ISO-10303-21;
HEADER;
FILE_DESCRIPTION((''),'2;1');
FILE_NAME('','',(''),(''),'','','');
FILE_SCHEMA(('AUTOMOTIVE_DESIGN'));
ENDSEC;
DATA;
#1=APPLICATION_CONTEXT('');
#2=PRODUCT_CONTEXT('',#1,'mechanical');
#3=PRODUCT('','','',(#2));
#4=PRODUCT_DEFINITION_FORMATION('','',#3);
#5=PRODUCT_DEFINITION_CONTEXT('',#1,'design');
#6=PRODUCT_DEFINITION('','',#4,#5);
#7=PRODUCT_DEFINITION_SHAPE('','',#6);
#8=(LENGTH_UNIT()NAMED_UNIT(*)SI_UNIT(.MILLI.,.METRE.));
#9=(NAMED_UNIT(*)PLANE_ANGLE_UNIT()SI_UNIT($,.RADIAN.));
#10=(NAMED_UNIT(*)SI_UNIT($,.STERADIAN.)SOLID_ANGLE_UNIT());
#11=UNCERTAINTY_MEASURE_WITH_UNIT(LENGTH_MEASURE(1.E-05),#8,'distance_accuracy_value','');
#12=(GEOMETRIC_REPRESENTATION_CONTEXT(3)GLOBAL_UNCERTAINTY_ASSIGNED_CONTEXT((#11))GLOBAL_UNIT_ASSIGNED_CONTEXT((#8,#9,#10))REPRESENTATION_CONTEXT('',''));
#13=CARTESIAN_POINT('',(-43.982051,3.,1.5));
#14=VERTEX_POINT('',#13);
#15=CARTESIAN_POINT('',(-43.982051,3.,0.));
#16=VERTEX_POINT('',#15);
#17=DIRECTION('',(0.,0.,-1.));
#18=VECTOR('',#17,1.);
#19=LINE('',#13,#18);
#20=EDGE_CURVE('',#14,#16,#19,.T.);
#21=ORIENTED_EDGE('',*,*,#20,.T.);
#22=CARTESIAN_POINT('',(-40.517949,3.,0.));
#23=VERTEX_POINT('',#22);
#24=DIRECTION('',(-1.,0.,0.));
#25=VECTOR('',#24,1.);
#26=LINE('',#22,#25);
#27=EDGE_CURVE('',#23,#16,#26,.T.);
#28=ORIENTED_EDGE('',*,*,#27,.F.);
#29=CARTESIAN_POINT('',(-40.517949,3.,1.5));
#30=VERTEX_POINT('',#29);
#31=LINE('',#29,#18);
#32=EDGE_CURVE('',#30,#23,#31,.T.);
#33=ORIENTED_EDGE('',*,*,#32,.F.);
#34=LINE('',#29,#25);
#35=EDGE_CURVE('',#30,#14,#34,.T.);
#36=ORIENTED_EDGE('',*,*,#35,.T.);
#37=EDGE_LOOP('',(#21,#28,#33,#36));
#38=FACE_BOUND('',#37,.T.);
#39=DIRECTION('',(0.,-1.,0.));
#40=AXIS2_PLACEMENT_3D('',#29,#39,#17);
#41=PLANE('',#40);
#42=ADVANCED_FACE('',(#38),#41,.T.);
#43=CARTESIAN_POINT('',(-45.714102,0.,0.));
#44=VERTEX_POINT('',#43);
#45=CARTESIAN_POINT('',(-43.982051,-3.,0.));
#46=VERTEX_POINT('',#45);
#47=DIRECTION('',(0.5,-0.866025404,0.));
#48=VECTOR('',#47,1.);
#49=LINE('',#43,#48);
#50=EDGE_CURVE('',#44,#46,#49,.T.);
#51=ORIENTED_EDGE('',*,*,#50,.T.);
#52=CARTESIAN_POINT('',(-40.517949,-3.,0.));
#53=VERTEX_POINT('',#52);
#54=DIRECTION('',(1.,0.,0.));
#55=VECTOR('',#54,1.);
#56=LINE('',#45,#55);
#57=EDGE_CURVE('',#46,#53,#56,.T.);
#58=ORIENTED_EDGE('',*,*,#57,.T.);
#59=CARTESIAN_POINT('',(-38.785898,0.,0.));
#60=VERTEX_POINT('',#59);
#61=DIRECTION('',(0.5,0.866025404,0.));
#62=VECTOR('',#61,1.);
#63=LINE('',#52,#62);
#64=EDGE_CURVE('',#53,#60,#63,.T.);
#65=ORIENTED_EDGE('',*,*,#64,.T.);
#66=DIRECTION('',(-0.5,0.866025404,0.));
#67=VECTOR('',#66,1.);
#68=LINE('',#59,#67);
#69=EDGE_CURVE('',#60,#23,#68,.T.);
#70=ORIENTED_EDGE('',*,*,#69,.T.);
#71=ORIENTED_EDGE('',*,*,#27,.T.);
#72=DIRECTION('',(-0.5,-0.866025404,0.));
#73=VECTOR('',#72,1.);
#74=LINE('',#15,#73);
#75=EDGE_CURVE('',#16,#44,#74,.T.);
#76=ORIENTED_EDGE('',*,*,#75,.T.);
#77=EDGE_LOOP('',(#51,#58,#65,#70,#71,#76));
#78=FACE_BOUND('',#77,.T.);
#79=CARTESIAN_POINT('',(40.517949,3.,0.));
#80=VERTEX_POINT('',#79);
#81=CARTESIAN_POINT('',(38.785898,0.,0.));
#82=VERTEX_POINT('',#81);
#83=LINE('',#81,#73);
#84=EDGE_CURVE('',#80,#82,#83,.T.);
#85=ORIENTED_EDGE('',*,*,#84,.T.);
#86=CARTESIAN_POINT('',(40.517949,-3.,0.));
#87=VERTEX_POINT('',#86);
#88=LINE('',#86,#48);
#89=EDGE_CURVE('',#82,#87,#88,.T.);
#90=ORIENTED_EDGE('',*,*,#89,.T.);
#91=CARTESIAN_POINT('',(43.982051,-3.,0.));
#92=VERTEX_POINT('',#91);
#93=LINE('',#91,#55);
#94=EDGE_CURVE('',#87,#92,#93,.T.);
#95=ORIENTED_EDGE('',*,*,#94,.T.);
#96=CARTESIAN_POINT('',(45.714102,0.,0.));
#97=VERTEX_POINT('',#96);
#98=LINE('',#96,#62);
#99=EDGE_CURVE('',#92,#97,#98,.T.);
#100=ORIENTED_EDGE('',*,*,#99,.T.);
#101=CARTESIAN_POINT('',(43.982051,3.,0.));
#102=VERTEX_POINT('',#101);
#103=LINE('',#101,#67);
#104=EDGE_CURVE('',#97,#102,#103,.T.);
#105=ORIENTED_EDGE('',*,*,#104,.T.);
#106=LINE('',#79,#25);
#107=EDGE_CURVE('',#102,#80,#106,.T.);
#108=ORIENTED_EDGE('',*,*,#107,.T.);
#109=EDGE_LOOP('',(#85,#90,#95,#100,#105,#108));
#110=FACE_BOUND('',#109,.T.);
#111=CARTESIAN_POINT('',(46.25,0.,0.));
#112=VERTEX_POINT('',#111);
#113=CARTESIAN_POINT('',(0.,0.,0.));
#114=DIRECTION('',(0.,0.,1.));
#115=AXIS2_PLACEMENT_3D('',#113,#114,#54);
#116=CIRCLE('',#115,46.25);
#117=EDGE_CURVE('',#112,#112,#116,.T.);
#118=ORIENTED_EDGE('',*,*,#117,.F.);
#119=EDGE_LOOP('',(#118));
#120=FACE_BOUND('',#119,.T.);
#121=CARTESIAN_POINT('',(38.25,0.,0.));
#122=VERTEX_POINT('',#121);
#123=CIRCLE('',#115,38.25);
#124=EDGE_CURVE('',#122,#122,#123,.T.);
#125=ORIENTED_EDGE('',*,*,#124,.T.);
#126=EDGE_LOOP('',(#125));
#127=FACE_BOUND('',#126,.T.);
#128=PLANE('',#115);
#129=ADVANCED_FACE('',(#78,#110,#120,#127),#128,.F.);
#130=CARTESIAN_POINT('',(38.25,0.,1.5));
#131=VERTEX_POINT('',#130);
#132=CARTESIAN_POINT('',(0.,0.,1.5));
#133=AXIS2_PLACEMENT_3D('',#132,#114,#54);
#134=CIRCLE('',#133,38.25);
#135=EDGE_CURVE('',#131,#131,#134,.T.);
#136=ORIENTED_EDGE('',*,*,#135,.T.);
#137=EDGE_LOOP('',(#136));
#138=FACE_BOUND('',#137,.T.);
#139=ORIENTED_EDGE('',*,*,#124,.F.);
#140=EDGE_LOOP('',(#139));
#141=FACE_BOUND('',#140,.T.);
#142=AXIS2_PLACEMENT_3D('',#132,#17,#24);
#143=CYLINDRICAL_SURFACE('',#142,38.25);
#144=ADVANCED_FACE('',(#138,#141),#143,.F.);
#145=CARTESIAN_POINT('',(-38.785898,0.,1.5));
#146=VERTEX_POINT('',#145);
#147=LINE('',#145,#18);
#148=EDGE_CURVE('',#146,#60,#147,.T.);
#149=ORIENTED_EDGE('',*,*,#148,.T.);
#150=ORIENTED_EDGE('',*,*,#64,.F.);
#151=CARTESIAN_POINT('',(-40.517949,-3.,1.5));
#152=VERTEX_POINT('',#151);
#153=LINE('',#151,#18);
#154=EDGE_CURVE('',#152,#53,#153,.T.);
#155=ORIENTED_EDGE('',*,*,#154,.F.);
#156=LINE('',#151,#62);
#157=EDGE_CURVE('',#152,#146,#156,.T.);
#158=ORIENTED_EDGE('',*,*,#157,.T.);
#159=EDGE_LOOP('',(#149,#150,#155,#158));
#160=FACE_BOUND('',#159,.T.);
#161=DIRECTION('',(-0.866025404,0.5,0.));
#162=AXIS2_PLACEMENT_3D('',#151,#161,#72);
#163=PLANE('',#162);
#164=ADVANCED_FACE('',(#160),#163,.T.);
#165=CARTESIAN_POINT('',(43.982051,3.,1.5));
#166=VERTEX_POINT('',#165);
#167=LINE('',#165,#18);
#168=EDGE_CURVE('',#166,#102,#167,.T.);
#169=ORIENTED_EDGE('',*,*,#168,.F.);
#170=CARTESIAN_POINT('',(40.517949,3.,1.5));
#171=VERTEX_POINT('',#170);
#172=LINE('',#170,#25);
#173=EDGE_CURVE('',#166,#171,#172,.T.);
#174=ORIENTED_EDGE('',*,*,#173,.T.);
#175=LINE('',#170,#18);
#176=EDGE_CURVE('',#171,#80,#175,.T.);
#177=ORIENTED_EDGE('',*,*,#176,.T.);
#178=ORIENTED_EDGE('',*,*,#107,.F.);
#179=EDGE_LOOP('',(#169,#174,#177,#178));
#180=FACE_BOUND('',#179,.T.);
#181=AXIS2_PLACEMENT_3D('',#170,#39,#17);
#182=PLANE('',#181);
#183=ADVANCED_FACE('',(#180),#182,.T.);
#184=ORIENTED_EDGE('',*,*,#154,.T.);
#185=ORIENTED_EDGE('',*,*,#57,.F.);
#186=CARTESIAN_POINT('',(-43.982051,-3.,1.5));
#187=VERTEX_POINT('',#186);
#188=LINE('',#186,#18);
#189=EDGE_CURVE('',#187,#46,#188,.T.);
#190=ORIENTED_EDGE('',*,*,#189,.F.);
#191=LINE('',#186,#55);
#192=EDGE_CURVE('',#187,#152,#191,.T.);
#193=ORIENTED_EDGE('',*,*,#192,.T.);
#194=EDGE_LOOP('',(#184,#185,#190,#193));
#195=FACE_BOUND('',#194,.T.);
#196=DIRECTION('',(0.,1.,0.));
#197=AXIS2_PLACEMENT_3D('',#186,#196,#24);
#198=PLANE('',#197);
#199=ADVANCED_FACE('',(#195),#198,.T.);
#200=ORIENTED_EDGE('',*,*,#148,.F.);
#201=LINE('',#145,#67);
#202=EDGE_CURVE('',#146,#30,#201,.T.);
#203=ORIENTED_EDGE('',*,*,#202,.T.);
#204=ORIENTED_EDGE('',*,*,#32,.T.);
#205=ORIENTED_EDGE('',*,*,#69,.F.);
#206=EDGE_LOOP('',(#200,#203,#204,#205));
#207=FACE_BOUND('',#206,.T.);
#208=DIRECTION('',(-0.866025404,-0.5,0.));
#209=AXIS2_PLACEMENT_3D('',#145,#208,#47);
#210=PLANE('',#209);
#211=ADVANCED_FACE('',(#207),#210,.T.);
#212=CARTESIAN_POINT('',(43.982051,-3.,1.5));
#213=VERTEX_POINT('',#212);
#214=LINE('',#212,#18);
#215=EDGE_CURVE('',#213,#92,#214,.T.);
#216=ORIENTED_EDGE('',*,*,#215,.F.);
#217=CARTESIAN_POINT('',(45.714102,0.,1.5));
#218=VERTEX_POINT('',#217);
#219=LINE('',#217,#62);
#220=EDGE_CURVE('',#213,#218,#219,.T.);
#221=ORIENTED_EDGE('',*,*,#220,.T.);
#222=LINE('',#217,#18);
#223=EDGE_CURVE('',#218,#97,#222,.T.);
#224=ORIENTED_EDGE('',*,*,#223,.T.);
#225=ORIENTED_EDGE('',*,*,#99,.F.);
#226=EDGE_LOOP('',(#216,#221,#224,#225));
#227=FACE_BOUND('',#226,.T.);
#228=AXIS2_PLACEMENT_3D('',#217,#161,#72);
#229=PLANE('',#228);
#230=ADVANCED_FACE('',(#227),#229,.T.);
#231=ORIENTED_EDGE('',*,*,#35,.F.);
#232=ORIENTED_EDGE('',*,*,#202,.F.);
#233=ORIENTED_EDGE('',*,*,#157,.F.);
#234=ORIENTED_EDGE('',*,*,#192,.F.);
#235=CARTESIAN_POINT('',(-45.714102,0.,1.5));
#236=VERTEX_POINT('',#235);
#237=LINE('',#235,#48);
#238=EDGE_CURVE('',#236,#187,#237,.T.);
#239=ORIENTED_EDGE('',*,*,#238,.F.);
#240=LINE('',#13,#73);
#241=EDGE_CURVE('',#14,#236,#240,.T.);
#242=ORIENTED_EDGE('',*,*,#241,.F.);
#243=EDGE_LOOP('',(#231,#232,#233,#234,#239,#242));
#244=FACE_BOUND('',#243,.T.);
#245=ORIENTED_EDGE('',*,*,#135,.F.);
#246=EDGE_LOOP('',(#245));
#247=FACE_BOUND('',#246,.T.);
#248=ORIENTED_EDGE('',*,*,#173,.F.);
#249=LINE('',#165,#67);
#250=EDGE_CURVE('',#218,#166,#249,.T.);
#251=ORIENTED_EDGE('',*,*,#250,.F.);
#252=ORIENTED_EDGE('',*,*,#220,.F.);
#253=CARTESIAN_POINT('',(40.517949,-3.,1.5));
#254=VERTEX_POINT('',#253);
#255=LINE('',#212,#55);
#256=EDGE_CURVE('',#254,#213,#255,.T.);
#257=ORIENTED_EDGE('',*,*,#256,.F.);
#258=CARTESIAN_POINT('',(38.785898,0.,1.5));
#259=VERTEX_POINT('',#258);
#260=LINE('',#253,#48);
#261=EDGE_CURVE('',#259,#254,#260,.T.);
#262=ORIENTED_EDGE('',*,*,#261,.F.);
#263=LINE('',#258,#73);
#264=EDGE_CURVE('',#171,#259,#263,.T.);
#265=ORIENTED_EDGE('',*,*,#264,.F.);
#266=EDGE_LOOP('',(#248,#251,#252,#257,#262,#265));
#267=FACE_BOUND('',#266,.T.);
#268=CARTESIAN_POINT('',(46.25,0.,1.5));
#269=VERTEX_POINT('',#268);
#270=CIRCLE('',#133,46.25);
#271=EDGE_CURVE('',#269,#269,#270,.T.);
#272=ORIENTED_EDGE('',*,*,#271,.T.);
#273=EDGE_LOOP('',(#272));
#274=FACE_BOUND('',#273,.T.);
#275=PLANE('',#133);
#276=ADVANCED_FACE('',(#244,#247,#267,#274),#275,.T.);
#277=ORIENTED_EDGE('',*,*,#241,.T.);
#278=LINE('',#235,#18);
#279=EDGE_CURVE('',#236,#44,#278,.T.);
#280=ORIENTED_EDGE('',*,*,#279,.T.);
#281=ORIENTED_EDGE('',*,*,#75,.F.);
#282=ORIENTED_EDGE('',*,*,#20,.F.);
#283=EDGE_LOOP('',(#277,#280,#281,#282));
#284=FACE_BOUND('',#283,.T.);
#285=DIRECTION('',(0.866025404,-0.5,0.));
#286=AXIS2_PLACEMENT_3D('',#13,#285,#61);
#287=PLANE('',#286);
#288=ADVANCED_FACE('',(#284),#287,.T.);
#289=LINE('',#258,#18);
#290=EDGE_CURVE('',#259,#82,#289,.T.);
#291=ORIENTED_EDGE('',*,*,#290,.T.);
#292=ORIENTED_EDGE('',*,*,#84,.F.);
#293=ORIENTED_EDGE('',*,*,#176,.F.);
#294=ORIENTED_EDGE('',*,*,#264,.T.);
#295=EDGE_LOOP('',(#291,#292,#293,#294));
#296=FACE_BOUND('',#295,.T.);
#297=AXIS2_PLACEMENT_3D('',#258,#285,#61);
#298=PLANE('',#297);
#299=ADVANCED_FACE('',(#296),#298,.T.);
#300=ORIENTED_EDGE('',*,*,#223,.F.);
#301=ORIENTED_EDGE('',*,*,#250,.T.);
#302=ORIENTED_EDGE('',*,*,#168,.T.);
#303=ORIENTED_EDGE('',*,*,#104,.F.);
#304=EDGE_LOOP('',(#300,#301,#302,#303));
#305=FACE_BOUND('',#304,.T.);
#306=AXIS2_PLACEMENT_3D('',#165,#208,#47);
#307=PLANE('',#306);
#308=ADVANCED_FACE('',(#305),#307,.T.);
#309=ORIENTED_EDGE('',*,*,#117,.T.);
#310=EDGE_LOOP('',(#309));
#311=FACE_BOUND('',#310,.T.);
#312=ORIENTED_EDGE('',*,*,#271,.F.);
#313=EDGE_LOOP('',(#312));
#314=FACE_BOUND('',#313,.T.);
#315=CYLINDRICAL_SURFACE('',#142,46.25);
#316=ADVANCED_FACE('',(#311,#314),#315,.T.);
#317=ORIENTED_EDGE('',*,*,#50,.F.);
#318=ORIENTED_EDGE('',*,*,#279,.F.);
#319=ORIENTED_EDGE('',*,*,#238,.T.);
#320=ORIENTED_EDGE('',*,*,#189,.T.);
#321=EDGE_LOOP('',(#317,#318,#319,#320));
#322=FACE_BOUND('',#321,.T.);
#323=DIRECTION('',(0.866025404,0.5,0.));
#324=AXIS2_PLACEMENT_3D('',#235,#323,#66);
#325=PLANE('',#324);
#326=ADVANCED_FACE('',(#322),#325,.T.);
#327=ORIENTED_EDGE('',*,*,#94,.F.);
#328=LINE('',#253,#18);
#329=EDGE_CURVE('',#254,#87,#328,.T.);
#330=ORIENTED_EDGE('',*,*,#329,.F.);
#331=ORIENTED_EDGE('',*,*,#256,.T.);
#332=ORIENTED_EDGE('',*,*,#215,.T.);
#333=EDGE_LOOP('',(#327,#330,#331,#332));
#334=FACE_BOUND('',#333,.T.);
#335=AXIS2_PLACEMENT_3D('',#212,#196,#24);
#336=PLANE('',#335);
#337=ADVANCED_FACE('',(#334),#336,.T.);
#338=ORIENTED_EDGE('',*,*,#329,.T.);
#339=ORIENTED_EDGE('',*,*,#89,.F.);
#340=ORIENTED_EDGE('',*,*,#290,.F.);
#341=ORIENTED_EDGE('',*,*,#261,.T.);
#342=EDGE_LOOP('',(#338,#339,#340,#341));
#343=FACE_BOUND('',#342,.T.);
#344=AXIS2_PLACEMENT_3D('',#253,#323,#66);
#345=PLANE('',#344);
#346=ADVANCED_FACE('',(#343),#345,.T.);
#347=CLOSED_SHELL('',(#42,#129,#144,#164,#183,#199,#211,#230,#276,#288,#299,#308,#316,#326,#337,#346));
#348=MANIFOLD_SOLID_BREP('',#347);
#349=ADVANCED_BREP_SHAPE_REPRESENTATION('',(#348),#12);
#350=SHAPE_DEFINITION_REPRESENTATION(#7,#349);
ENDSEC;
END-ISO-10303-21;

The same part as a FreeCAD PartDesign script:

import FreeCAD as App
import Part
import Sketcher
from FreeCAD import Vector
Q = App.Units.Quantity


def add_polygon(sketch, points):
    """Adds a closed chain of lines whose ends are joined by coincident constraints."""
    first, n = sketch.GeometryCount, len(points)
    for a, b in zip(points, points[1:] + points[:1]):
        sketch.addGeometry(Part.LineSegment(App.Vector(*a, 0), App.Vector(*b, 0)), False)
    for i in range(n):
        sketch.addConstraint(Sketcher.Constraint("Coincident", first + i, 2, first + (i + 1) % n, 1))

doc = App.newDocument("Part")
body = doc.addObject("PartDesign::Body", "Body")

sketch1 = body.newObject("Sketcher::SketchObject", "Sketch")
sketch1.AttachmentSupport = (doc.getObject("XY_Plane"), [""])
sketch1.MapMode = "FlatFace"
sketch1.addGeometry(Part.Circle(Vector(0, 0, 0), Vector(0, 0, 1), 46.25), False)
add_polygon(sketch1, [(-43.982051, 3), (-40.517949, 3), (-38.785898, 0), (-40.517949, -3), (-43.982051, -3), (-45.714102, 0)])
sketch1.addGeometry(Part.Circle(Vector(0, 0, 0), Vector(0, 0, 1), 38.25), False)
add_polygon(sketch1, [(40.517949, -3), (38.785898, 0), (40.517949, 3), (43.982051, 3), (45.714102, 0), (43.982051, -3)])
sketch1.addConstraint(Sketcher.Constraint("Horizontal", 1))
sketch1.addConstraint(Sketcher.Constraint("Horizontal", 4))
sketch1.addConstraint(Sketcher.Constraint("Horizontal", 10))
sketch1.addConstraint(Sketcher.Constraint("Horizontal", 13))
sketch1.addConstraint(Sketcher.Constraint("Coincident", 0, 3, -1, 1))
sketch1.addConstraint(Sketcher.Constraint("Coincident", 7, 3, -1, 1))
sketch1.addConstraint(Sketcher.Constraint("Symmetric", 2, 2, 8, 2, -1, 1))
sketch1.addConstraint(Sketcher.Constraint("Symmetric", 3, 2, 9, 2, -1, 1))
sketch1.addConstraint(Sketcher.Constraint("Symmetric", 5, 2, 11, 2, -1, 1))
sketch1.addConstraint(Sketcher.Constraint("Symmetric", 6, 2, 12, 2, -1, 1))
sketch1.addConstraint(Sketcher.Constraint("Symmetric", 1, 2, 9, 2, -2))
sketch1.addConstraint(Sketcher.Constraint("PointOnObject", 2, 2, -1))
sketch1.addConstraint(Sketcher.Constraint("PointOnObject", 5, 2, -1))
sketch1.addConstraint(Sketcher.Constraint("Parallel", 2, 5))
sketch1.addConstraint(Sketcher.Constraint("Parallel", 3, 6))
sketch1.addConstraint(Sketcher.Constraint("Parallel", 5, 8))
sketch1.addConstraint(Sketcher.Constraint("Parallel", 8, 11))
sketch1.addConstraint(Sketcher.Constraint("Diameter", 0, 92.5))
sketch1.addConstraint(Sketcher.Constraint("Diameter", 7, 76.5))
sketch1.addConstraint(Sketcher.Constraint("Angle", 2, Q("-60 deg")))
sketch1.addConstraint(Sketcher.Constraint("DistanceY", -1, 1, 1, 2, 3.0))
sketch1.addConstraint(Sketcher.Constraint("DistanceX", 1, 1, 1, 2, 3.464102))
sketch1.addConstraint(Sketcher.Constraint("DistanceX", 2, 2, -1, 1, 38.785898))
pad1 = body.newObject("PartDesign::Pad", "Pad")
pad1.Profile = sketch1
pad1.Length = 1.5

doc.recompute()
